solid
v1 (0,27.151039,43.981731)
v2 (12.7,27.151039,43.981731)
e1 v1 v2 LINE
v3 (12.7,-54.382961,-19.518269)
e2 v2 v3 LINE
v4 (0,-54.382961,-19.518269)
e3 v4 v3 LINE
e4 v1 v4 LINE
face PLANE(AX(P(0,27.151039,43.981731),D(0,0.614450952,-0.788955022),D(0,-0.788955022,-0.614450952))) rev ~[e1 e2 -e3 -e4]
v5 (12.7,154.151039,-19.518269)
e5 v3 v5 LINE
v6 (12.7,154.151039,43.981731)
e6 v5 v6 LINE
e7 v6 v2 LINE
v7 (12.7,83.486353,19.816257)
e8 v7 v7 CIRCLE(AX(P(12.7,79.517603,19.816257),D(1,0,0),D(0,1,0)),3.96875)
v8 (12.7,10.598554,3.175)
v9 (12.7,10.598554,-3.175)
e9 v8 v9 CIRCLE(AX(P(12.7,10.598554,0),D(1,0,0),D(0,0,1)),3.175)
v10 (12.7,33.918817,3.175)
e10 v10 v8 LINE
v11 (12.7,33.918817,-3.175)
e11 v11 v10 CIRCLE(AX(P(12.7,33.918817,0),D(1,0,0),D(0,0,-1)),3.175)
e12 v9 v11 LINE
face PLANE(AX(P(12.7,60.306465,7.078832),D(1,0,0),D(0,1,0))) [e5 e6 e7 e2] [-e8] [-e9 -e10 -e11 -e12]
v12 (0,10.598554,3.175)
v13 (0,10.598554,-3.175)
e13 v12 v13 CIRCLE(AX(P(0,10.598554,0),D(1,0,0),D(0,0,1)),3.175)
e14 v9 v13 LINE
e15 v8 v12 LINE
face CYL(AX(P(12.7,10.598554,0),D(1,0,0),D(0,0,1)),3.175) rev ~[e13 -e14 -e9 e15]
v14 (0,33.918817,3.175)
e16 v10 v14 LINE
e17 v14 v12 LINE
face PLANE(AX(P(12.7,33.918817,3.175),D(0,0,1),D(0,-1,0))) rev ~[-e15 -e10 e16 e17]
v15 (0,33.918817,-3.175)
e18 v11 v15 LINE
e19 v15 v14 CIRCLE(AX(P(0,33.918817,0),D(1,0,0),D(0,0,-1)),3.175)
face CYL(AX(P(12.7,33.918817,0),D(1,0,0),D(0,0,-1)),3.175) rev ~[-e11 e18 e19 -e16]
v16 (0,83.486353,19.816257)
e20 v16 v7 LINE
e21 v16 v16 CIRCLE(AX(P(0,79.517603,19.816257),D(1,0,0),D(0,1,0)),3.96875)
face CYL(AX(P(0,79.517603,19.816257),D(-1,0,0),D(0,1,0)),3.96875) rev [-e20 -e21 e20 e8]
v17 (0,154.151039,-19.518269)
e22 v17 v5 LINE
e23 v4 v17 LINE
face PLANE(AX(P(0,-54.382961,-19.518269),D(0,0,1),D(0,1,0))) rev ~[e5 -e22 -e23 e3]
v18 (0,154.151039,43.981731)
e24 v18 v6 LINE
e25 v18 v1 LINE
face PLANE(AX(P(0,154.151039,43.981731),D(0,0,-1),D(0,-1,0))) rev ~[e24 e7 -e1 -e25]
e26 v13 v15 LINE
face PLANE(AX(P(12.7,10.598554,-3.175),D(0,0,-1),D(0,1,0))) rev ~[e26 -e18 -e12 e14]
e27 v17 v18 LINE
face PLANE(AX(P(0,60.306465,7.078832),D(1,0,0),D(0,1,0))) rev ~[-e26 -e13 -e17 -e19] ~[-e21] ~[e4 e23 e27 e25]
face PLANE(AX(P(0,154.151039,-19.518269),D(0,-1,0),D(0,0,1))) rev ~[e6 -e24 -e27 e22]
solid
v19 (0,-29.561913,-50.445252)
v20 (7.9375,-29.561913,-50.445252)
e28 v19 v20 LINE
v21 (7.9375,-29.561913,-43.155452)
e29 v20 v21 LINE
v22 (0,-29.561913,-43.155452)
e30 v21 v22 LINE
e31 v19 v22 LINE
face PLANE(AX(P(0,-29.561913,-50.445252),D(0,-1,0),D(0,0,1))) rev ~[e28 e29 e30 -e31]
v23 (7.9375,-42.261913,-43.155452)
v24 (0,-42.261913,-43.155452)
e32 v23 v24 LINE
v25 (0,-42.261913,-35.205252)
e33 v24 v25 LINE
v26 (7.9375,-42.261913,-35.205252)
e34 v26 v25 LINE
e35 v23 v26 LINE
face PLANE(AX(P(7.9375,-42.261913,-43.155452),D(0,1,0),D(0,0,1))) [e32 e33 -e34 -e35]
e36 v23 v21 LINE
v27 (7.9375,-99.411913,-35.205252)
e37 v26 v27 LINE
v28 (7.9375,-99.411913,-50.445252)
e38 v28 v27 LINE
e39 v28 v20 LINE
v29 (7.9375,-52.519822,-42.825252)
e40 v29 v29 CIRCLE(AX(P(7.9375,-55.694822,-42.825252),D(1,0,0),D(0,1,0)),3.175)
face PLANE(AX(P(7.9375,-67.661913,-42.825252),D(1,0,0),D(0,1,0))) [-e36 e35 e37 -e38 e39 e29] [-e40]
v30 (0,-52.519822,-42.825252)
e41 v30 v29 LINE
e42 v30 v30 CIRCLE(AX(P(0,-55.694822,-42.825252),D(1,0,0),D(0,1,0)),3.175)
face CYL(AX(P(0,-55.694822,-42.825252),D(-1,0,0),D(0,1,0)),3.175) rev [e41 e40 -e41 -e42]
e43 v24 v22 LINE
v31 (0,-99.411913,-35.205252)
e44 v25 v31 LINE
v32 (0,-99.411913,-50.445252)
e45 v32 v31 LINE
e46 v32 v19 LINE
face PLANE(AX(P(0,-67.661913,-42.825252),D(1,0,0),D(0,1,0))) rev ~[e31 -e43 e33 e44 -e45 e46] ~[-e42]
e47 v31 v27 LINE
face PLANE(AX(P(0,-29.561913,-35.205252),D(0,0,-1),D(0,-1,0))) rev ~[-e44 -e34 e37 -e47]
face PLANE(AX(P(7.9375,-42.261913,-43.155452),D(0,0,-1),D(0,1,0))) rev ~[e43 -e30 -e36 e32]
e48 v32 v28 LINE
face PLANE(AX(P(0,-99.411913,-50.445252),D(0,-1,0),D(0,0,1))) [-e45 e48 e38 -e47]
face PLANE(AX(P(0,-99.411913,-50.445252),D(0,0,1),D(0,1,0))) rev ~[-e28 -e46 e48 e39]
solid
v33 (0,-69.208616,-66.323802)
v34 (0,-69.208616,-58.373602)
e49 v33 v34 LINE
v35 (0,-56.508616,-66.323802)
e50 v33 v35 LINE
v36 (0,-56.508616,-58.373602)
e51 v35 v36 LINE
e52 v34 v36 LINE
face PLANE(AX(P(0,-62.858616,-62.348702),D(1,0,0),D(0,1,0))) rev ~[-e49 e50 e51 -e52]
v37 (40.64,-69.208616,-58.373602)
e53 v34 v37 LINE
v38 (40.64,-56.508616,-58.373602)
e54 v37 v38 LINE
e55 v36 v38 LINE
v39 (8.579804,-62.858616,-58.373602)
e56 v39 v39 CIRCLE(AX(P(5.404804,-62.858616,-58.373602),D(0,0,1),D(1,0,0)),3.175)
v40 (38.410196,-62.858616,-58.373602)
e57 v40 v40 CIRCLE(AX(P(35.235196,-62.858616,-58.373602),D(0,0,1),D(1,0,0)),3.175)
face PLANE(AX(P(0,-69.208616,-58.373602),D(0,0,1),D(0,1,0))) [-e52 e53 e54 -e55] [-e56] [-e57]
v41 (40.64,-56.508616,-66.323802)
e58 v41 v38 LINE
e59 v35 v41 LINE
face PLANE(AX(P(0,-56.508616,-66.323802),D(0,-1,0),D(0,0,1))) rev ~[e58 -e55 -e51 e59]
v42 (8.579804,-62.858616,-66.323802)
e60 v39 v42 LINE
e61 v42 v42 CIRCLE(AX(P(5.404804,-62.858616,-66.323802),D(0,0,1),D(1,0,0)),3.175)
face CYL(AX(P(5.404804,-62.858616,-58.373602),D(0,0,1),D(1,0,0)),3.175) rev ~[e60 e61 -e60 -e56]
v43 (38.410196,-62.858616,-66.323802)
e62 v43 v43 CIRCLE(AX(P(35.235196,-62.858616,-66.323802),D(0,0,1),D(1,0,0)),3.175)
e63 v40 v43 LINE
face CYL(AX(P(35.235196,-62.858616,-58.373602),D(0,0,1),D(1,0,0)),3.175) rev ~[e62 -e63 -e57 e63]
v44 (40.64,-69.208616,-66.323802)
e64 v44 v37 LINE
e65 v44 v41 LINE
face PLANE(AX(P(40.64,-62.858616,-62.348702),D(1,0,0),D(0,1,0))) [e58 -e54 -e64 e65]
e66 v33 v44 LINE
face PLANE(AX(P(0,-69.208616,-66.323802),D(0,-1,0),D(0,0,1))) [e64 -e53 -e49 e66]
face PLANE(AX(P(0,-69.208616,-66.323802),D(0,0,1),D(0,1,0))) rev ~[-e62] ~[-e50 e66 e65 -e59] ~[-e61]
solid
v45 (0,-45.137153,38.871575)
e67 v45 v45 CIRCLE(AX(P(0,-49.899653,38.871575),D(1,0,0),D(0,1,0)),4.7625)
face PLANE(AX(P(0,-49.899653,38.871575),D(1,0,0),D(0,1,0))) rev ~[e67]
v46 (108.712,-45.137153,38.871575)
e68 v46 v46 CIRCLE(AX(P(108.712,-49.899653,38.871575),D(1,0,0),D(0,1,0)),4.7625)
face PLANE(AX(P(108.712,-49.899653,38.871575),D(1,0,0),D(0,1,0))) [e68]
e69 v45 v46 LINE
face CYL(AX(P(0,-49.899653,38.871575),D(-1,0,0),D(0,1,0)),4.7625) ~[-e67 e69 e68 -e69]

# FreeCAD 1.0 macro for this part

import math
import FreeCAD as App
import Part
import Sketcher
Q = App.Units.Quantity


def add_polygon(sketch, points):
    """Adds a closed chain of lines whose ends are joined by coincident constraints."""
    first, n = sketch.GeometryCount, len(points)
    for a, b in zip(points, points[1:] + points[:1]):
        sketch.addGeometry(Part.LineSegment(App.Vector(*a, 0), App.Vector(*b, 0)), False)
    for i in range(n):
        sketch.addConstraint(Sketcher.Constraint("Coincident", first + i, 2, first + (i + 1) % n, 1))

doc = App.newDocument("Part")
params = doc.addObject("Spreadsheet::Sheet", "Params")
for row, (alias, value) in enumerate([
    ("sketch1_width", "5 in"),
    ("sketch1_diameter", "0.3125 in"),
    ("sketch1_height", "2.5 in"),
    ("sketch1_width2", "8.21 in"),
    ("pad1_length", "0.5 in"),
    ("sketch2_radius", "0.125 in"),
    ("sketch3_width", "4 in"),
    ("sketch3_height", "0.3125 in"),
    ("pad2_length", "1.67 in"),
    ("sketch4_diameter", "0.375 in"),
    ("pad3_length", "4.28 in"),
    ("sketch5_diameter", "0.25 in"),
    ("sketch5_height", "0.6 in"),
    ("sketch5_width", "2.75 in"),
    ("pad4_length", "0.3125 in"),
    ("sketch6_width", "0.5 in"),
    ("sketch6_height", "0.313 in"),
    ("sketch7_width", "0.5 in"),
    ("sketch7_height", "0.313 in"),
    ("pad5_length", "1.6 in"),
    ("sketch8_diameter", "0.25 in"),
], start=1):
    params.set(f"A{row}", alias)
    params.set(f"B{row}", "=" + value)
    params.setAlias(f"B{row}", alias)

body = doc.addObject("PartDesign::Body", "Body")

# Sketch on YZ plane
sketch1 = body.newObject("Sketcher::SketchObject", "Sketch")
sketch1.AttachmentSupport = (doc.getObject("YZ_Plane"), [""])
sketch1.MapMode = "FlatFace"
add_polygon(sketch1, [(27.2, 44), (-54.4, -19.5), (154.2, -19.5), (154.2, 44)])  # lines 0-3
sketch1.addGeometry(Part.Circle(App.Vector(79.5, 19.8, 0), App.Vector(0, 0, 1), 4), False)  # 4
sketch1.addConstraint([
    Sketcher.Constraint("Horizontal", 1),
    Sketcher.Constraint("Vertical", 2),
    Sketcher.Constraint("Horizontal", 3),
    Sketcher.Constraint("DistanceX", 3, 2, 3, 1, Q("5 in")),
    Sketcher.Constraint("Diameter", 4, Q("0.3125 in")),
    Sketcher.Constraint("DistanceY", 2, 1, 2, 2, Q("2.5 in")),
    Sketcher.Constraint("DistanceX", 1, 1, 1, 2, Q("8.21 in")),
    Sketcher.Constraint("DistanceX", 0, 2, -1, 1, 54.382961),
    Sketcher.Constraint("DistanceY", 0, 2, -1, 1, 19.518269),
    Sketcher.Constraint("DistanceX", -1, 1, 4, 3, 79.517603),
    Sketcher.Constraint("DistanceY", -1, 1, 4, 3, 19.816257),
])
sketch1.setExpression("Constraints[7]", "Params.sketch1_width")
sketch1.setExpression("Constraints[8]", "Params.sketch1_diameter")
sketch1.setExpression("Constraints[9]", "Params.sketch1_height")
sketch1.setExpression("Constraints[10]", "Params.sketch1_width2")
pad1 = body.newObject("PartDesign::Pad", "Pad")
pad1.Profile = sketch1
pad1.setExpression("Length", "Params.pad1_length")

# Sketch on YZ plane
sketch2 = body.newObject("Sketcher::SketchObject", "Sketch001")
sketch2.AttachmentSupport = (doc.getObject("YZ_Plane"), [""])
sketch2.MapMode = "FlatFace"
sketch2.AttachmentOffset = App.Placement(App.Vector(0, 0, 0.5 * 25.4), App.Rotation())
sketch2.addGeometry([
    Part.LineSegment(App.Vector(33.9, 3.2, 0), App.Vector(10.6, 3.2, 0)),
    Part.ArcOfCircle(Part.Circle(App.Vector(10.6, 0, 0), App.Vector(0, 0, 1), 3.2), math.radians(90), math.radians(270)),
    Part.LineSegment(App.Vector(10.6, -3.2, 0), App.Vector(33.9, -3.2, 0)),
    Part.ArcOfCircle(Part.Circle(App.Vector(33.9, 0, 0), App.Vector(0, 0, 1), 3.2), math.radians(-90), math.radians(90)),
], False)
sketch2.addConstraint([
    Sketcher.Constraint("Tangent", 0, 2, 1, 1),
    Sketcher.Constraint("Tangent", 1, 2, 2, 1),
    Sketcher.Constraint("Tangent", 2, 2, 3, 1),
    Sketcher.Constraint("Tangent", 3, 2, 0, 1),
    Sketcher.Constraint("Horizontal", 0),
    Sketcher.Constraint("Horizontal", 2),
    Sketcher.Constraint("PointOnObject", 1, 3, -1),
    Sketcher.Constraint("Radius", 1, Q("0.125 in")),
    Sketcher.Constraint("DistanceX", 0, 2, 0, 1, 23.320263),
    Sketcher.Constraint("DistanceX", -1, 1, 1, 3, 10.598554),
])
sketch2.setExpression("Constraints[7]", "Params.sketch2_radius")
pocket1 = body.newObject("PartDesign::Pocket", "Pocket")
pocket1.Profile = sketch2
pocket1.Type = "ThroughAll"
body2 = doc.addObject("PartDesign::Body", "Body001")

# Sketch on YZ plane
sketch3 = body2.newObject("Sketcher::SketchObject", "Sketch002")
sketch3.AttachmentSupport = (doc.getObject("YZ_Plane001"), [""])
sketch3.MapMode = "FlatFace"
add_polygon(sketch3, [(-25, -42), (-25, -50), (76, -50), (76, -42)])  # lines 0-3
sketch3.addConstraint([
    Sketcher.Constraint("Vertical", 0),
    Sketcher.Constraint("Horizontal", 1),
    Sketcher.Constraint("Vertical", 2),
    Sketcher.Constraint("Horizontal", 3),
    Sketcher.Constraint("DistanceX", 1, 1, 1, 2, Q("4 in")),
    Sketcher.Constraint("DistanceY", 0, 2, 0, 1, Q("0.3125 in")),
    Sketcher.Constraint("DistanceX", 0, 2, -1, 1, 25.421279),
    Sketcher.Constraint("DistanceY", 0, 2, -1, 1, 49.913127),
])
sketch3.setExpression("Constraints[8]", "Params.sketch3_width")
sketch3.setExpression("Constraints[9]", "Params.sketch3_height")
pad2 = body2.newObject("PartDesign::Pad", "Pad001")
pad2.Profile = sketch3
pad2.setExpression("Length", "Params.pad2_length")
body3 = doc.addObject("PartDesign::Body", "Body002")

# Sketch on YZ plane
sketch4 = body3.newObject("Sketcher::SketchObject", "Sketch003")
sketch4.AttachmentSupport = (doc.getObject("YZ_Plane002"), [""])
sketch4.MapMode = "FlatFace"
sketch4.addGeometry(Part.Circle(App.Vector(-49.9, 38.9, 0), App.Vector(0, 0, 1), 4.8), False)
sketch4.addConstraint([
    Sketcher.Constraint("Diameter", 0, Q("0.375 in")),
    Sketcher.Constraint("DistanceX", 0, 3, -1, 1, 49.899653),
    Sketcher.Constraint("DistanceY", -1, 1, 0, 3, 38.871575),
])
sketch4.setExpression("Constraints[0]", "Params.sketch4_diameter")
pad3 = body3.newObject("PartDesign::Pad", "Pad002")
pad3.Profile = sketch4
pad3.setExpression("Length", "Params.pad3_length")
body4 = doc.addObject("PartDesign::Body", "Body003")

# Sketch on YZ plane
sketch5 = body4.newObject("Sketcher::SketchObject", "Sketch004")
sketch5.AttachmentSupport = (doc.getObject("YZ_Plane003"), [""])
sketch5.MapMode = "FlatFace"
add_polygon(sketch5, [(-99.4, -35.2), (-99.4, -50.4), (-29.6, -50.4), (-29.6, -35.2)])  # lines 0-3
sketch5.addGeometry(Part.Circle(App.Vector(-55.7, -42.8, 0), App.Vector(0, 0, 1), 3.2), False)  # 4
sketch5.addConstraint([
    Sketcher.Constraint("Vertical", 0),
    Sketcher.Constraint("Horizontal", 1),
    Sketcher.Constraint("Vertical", 2),
    Sketcher.Constraint("Horizontal", 3),
    Sketcher.Constraint("Diameter", 4, Q("0.25 in")),
    Sketcher.Constraint("DistanceY", 0, 2, 0, 1, Q("0.6 in")),
    Sketcher.Constraint("DistanceX", 1, 1, 1, 2, Q("2.75 in")),
    Sketcher.Constraint("DistanceY", 0, 2, 4, 3, Q("0.3 in")),
    Sketcher.Constraint("DistanceX", 0, 2, 4, 3, 43.717091),
    Sketcher.Constraint("DistanceX", 4, 3, -1, 1, 55.694822),
    Sketcher.Constraint("DistanceY", 4, 3, -1, 1, 42.825252),
])
sketch5.setExpression("Constraints[8]", "Params.sketch5_diameter")
sketch5.setExpression("Constraints[9]", "Params.sketch5_height")
sketch5.setExpression("Constraints[10]", "Params.sketch5_width")
pad4 = body4.newObject("PartDesign::Pad", "Pad003")
pad4.Profile = sketch5
pad4.setExpression("Length", "Params.pad4_length")

# Sketch on YZ plane
sketch6 = body4.newObject("Sketcher::SketchObject", "Sketch005")
sketch6.AttachmentSupport = (doc.getObject("YZ_Plane003"), [""])
sketch6.MapMode = "FlatFace"
sketch6.AttachmentOffset = App.Placement(App.Vector(0, 0, 0.3125 * 25.4), App.Rotation())
add_polygon(sketch6, [(-42, -35), (-42, -43), (-30, -43), (-30, -35)])  # lines 0-3
sketch6.addConstraint([
    Sketcher.Constraint("Vertical", 0),
    Sketcher.Constraint("Horizontal", 1),
    Sketcher.Constraint("Vertical", 2),
    Sketcher.Constraint("Horizontal", 3),
    Sketcher.Constraint("DistanceX", 1, 1, 1, 2, Q("0.5 in")),
    Sketcher.Constraint("DistanceY", 0, 2, 0, 1, Q("0.313 in")),
    Sketcher.Constraint("DistanceY", 0, 2, -1, 1, 43.155452),
    Sketcher.Constraint("DistanceX", 0, 2, -1, 1, 42.261913),
])
sketch6.setExpression("Constraints[8]", "Params.sketch6_width")
sketch6.setExpression("Constraints[9]", "Params.sketch6_height")
pocket2 = body4.newObject("PartDesign::Pocket", "Pocket001")
pocket2.Profile = sketch6
pocket2.Type = "ThroughAll"
body5 = doc.addObject("PartDesign::Body", "Body004")

# Sketch on YZ plane
sketch7 = body5.newObject("Sketcher::SketchObject", "Sketch006")
sketch7.AttachmentSupport = (doc.getObject("YZ_Plane004"), [""])
sketch7.MapMode = "FlatFace"
add_polygon(sketch7, [(-69, -58), (-69, -66), (-57, -66), (-57, -58)])  # lines 0-3
sketch7.addConstraint([
    Sketcher.Constraint("Vertical", 0),
    Sketcher.Constraint("Horizontal", 1),
    Sketcher.Constraint("Vertical", 2),
    Sketcher.Constraint("Horizontal", 3),
    Sketcher.Constraint("DistanceX", 1, 1, 1, 2, Q("0.5 in")),
    Sketcher.Constraint("DistanceY", 0, 2, 0, 1, Q("0.313 in")),
    Sketcher.Constraint("DistanceY", 0, 2, -1, 1, 66.323802),
    Sketcher.Constraint("DistanceX", 0, 2, -1, 1, 69.208616),
])
sketch7.setExpression("Constraints[8]", "Params.sketch7_width")
sketch7.setExpression("Constraints[9]", "Params.sketch7_height")
pad5 = body5.newObject("PartDesign::Pad", "Pad004")
pad5.Profile = sketch7
pad5.setExpression("Length", "Params.pad5_length")

# Sketch on XY plane
sketch8 = body5.newObject("Sketcher::SketchObject", "Sketch007")
sketch8.AttachmentSupport = (doc.getObject("XY_Plane004"), [""])
sketch8.MapMode = "FlatFace"
sketch8.AttachmentOffset = App.Placement(App.Vector(0, 0, -58.373602), App.Rotation())
sketch8.addGeometry([
    Part.Circle(App.Vector(35.2, -62.9, 0), App.Vector(0, 0, 1), 3.2),
    Part.Circle(App.Vector(5.4, -62.9, 0), App.Vector(0, 0, 1), 3.2),
], False)
sketch8.addConstraint([
    Sketcher.Constraint("Equal", 0, 1),
    Sketcher.Constraint("Horizontal", 0, 3, 1, 3),
    Sketcher.Constraint("Diameter", 0, Q("0.25 in")),
    Sketcher.Constraint("DistanceX", -1, 1, 0, 3, 35.235196),
    Sketcher.Constraint("DistanceY", 0, 3, -1, 1, 62.858616),
    Sketcher.Constraint("DistanceX", -1, 1, 1, 3, 5.404804),
])
sketch8.setExpression("Constraints[2]", "Params.sketch8_diameter")
pocket3 = body5.newObject("PartDesign::Pocket", "Pocket002")
pocket3.Profile = sketch8
pocket3.Type = "ThroughAll"
body2.Visibility = False

doc.recompute()
